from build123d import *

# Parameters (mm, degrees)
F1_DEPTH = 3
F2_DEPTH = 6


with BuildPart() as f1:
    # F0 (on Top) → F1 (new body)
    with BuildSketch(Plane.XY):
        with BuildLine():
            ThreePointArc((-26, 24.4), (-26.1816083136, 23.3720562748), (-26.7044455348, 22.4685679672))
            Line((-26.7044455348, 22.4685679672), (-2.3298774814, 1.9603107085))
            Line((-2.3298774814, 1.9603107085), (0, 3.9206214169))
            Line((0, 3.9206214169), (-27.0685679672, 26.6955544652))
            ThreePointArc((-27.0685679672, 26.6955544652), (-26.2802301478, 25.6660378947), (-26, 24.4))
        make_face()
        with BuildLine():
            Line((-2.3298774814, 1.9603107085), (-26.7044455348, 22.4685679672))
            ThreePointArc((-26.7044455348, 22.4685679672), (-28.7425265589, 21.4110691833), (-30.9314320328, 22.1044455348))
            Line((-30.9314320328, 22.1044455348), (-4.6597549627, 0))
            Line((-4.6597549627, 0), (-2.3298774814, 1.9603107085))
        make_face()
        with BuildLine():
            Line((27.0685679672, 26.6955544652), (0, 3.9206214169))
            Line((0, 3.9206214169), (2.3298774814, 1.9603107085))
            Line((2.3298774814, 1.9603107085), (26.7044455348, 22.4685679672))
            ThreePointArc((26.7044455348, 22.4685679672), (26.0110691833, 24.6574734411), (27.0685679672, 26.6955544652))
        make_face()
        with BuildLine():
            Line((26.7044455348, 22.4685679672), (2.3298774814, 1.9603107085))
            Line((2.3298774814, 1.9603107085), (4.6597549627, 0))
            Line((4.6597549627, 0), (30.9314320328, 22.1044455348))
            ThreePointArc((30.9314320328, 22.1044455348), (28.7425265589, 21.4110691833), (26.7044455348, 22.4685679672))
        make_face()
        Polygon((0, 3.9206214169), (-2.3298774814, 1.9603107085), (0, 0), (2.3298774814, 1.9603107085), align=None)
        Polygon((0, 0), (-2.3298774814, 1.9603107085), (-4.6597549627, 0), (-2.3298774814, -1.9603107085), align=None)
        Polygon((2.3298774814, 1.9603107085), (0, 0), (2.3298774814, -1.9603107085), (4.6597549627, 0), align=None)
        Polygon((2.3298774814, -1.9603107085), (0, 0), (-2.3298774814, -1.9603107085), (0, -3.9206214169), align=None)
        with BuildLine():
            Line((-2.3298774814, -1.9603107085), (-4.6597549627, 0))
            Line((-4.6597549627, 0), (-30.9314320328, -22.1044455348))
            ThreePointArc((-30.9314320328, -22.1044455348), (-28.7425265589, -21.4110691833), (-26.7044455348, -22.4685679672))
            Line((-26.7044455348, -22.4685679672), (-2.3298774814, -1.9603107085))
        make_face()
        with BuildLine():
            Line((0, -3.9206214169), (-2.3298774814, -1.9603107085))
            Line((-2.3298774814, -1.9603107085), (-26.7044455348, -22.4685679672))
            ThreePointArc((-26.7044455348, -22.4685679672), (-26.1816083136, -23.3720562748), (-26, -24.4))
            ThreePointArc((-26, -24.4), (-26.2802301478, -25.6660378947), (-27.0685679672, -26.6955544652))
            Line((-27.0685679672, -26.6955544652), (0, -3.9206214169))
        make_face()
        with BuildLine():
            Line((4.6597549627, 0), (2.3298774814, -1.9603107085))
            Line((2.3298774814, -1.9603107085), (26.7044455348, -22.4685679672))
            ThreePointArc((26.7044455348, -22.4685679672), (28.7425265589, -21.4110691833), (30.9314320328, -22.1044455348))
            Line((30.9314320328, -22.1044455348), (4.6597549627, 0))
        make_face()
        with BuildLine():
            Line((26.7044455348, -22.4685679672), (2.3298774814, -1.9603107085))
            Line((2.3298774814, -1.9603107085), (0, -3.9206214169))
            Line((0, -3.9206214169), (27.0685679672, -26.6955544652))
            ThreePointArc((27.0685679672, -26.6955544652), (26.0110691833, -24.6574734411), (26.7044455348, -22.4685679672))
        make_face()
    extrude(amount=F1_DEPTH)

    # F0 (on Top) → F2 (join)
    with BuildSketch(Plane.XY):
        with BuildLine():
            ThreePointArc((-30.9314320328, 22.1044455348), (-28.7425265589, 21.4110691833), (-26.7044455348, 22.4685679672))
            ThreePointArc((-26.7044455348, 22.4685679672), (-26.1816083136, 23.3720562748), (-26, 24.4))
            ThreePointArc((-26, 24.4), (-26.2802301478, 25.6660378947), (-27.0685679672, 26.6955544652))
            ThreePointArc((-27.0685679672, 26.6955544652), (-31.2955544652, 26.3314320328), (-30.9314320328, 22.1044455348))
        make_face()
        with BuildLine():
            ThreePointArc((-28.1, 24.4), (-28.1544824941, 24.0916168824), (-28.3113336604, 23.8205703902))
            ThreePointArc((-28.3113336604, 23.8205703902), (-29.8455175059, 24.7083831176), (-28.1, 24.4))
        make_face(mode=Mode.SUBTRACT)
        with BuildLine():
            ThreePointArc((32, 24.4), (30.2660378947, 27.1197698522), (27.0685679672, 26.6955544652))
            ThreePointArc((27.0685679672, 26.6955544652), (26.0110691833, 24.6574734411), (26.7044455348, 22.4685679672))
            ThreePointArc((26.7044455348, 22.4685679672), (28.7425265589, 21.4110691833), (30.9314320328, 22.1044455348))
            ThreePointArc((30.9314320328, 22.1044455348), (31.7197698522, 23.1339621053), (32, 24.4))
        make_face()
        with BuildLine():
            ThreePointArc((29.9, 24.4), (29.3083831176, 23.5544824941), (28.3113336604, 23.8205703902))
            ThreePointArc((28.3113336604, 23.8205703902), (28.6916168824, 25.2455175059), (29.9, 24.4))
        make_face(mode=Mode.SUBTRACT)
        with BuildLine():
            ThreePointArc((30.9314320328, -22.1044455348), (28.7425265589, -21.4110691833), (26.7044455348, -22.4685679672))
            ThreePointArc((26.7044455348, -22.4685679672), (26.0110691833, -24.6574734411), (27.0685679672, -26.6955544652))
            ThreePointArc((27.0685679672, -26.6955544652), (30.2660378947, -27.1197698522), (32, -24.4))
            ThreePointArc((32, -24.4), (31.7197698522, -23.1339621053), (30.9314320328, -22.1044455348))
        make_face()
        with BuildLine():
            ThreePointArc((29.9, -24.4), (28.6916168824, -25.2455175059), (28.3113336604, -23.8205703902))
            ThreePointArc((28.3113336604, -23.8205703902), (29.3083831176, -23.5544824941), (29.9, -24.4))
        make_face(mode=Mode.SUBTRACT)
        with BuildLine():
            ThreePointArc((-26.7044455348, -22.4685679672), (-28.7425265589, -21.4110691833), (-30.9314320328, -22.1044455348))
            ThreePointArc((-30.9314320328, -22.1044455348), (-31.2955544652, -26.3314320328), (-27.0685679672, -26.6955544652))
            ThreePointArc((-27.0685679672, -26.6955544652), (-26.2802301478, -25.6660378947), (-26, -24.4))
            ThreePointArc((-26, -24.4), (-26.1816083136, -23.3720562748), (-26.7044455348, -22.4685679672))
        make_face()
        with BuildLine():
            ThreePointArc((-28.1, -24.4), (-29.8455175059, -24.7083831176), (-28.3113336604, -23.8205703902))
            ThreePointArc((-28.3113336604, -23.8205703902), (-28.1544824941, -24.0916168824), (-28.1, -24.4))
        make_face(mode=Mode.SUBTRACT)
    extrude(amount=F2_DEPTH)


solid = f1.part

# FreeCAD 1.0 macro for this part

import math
import FreeCAD as App
import Part
import Sketcher

V = App.Vector

doc = App.newDocument("Part")
body = doc.addObject("PartDesign::Body", "Body")

# Sketch on XY plane
sketch1 = doc.addObject("Sketcher::SketchObject", "Sketch")
body.addObject(sketch1)
sketch1.AttachmentSupport = (doc.XY_Plane, [""])
sketch1.MapMode = "FlatFace"
sketch1.addGeometry(Part.ArcOfCircle(Part.Circle(V(-29, 24.4, 0), V(0, 0, 1), 3), math.radians(-40), math.radians(0)), False)
sketch1.addGeometry(Part.ArcOfCircle(Part.Circle(V(-29, 24.4, 0), V(0, 0, 1), 3), math.radians(-130), math.radians(-40)), False)
sketch1.addGeometry(Part.LineSegment(V(-30.9, 22.1, 0), V(-4.7, 0, 0)), False)
sketch1.addGeometry(Part.LineSegment(V(-4.7, 0, 0), V(-30.9, -22.1, 0)), False)
sketch1.addGeometry(Part.ArcOfCircle(Part.Circle(V(-29, -24.4, 0), V(0, 0, 1), 3), math.radians(40), math.radians(130)), False)
sketch1.addGeometry(Part.ArcOfCircle(Part.Circle(V(-29, -24.4, 0), V(0, 0, 1), 3), math.radians(0), math.radians(40)), False)
sketch1.addGeometry(Part.ArcOfCircle(Part.Circle(V(-29, -24.4, 0), V(0, 0, 1), 3), math.radians(-50), math.radians(0)), False)
sketch1.addGeometry(Part.LineSegment(V(-27.1, -26.7, 0), V(0, -3.9, 0)), False)
sketch1.addGeometry(Part.LineSegment(V(0, -3.9, 0), V(27.1, -26.7, 0)), False)
sketch1.addGeometry(Part.ArcOfCircle(Part.Circle(V(29, -24.4, 0), V(0, 0, 1), 3), math.radians(140), math.radians(230)), False)
sketch1.addGeometry(Part.ArcOfCircle(Part.Circle(V(29, -24.4, 0), V(0, 0, 1), 3), math.radians(50), math.radians(140)), False)
sketch1.addGeometry(Part.LineSegment(V(30.9, -22.1, 0), V(4.7, 0, 0)), False)
sketch1.addGeometry(Part.LineSegment(V(4.7, 0, 0), V(30.9, 22.1, 0)), False)
sketch1.addGeometry(Part.ArcOfCircle(Part.Circle(V(29, 24.4, 0), V(0, 0, 1), 3), math.radians(-140), math.radians(-50)), False)
sketch1.addGeometry(Part.ArcOfCircle(Part.Circle(V(29, 24.4, 0), V(0, 0, 1), 3), math.radians(130), math.radians(220)), False)
sketch1.addGeometry(Part.LineSegment(V(27.1, 26.7, 0), V(0, 3.9, 0)), False)
sketch1.addGeometry(Part.LineSegment(V(0, 3.9, 0), V(-27.1, 26.7, 0)), False)
sketch1.addGeometry(Part.ArcOfCircle(Part.Circle(V(-29, 24.4, 0), V(0, 0, 1), 3), math.radians(0), math.radians(50)), False)
sketch1.addConstraint(Sketcher.Constraint("Tangent", 0, 1, 1, 2))
sketch1.addConstraint(Sketcher.Constraint("Tangent", 1, 1, 2, 1))
sketch1.addConstraint(Sketcher.Constraint("Coincident", 2, 2, 3, 1))
sketch1.addConstraint(Sketcher.Constraint("Tangent", 3, 2, 4, 2))
sketch1.addConstraint(Sketcher.Constraint("Tangent", 4, 1, 5, 2))
sketch1.addConstraint(Sketcher.Constraint("Tangent", 5, 1, 6, 2))
sketch1.addConstraint(Sketcher.Constraint("Tangent", 6, 1, 7, 1))
sketch1.addConstraint(Sketcher.Constraint("Coincident", 7, 2, 8, 1))
sketch1.addConstraint(Sketcher.Constraint("Tangent", 8, 2, 9, 2))
sketch1.addConstraint(Sketcher.Constraint("Tangent", 9, 1, 10, 2))
sketch1.addConstraint(Sketcher.Constraint("Tangent", 10, 1, 11, 1))
sketch1.addConstraint(Sketcher.Constraint("Coincident", 11, 2, 12, 1))
sketch1.addConstraint(Sketcher.Constraint("Tangent", 12, 2, 13, 2))
sketch1.addConstraint(Sketcher.Constraint("Tangent", 13, 1, 14, 2))
sketch1.addConstraint(Sketcher.Constraint("Tangent", 14, 1, 15, 1))
sketch1.addConstraint(Sketcher.Constraint("Coincident", 15, 2, 16, 1))
sketch1.addConstraint(Sketcher.Constraint("Tangent", 16, 2, 17, 2))
sketch1.addConstraint(Sketcher.Constraint("Tangent", 17, 1, 0, 2))
sketch1.addConstraint(Sketcher.Constraint("Coincident", 6, 3, 4, 3))
sketch1.addConstraint(Sketcher.Constraint("Equal", 0, 1))
sketch1.addConstraint(Sketcher.Constraint("Equal", 1, 4))
sketch1.addConstraint(Sketcher.Constraint("Equal", 6, 9))
sketch1.addConstraint(Sketcher.Constraint("Equal", 9, 10))
sketch1.addConstraint(Sketcher.Constraint("Equal", 10, 13))
sketch1.addConstraint(Sketcher.Constraint("Equal", 13, 14))
sketch1.addConstraint(Sketcher.Constraint("Equal", 14, 17))
sketch1.addConstraint(Sketcher.Constraint("Symmetric", 0, 3, 9, 3, -1, 1))
sketch1.addConstraint(Sketcher.Constraint("Symmetric", 4, 3, 13, 3, -1, 1))
sketch1.addConstraint(Sketcher.Constraint("Symmetric", 2, 2, 11, 2, -1, 1))
sketch1.addConstraint(Sketcher.Constraint("Symmetric", 7, 2, 15, 2, -1, 1))
sketch1.addConstraint(Sketcher.Constraint("Symmetric", 4, 3, 9, 3, -2))
sketch1.addConstraint(Sketcher.Constraint("PointOnObject", 2, 2, -1))
sketch1.addConstraint(Sketcher.Constraint("PointOnObject", 7, 2, -2))
sketch1.addConstraint(Sketcher.Constraint("Parallel", 3, 7))
sketch1.addConstraint(Sketcher.Constraint("Horizontal", 10, 3, 5, 1))
sketch1.addConstraint(Sketcher.Constraint("Horizontal", 4, 1, 9, 1))
sketch1.addConstraint(Sketcher.Constraint("Horizontal", 0, 1, 13, 1))
sketch1.addConstraint(Sketcher.Constraint("Horizontal", 14, 3, 17, 1))
sketch1.addConstraint(Sketcher.Constraint("Vertical", 0, 1, 4, 1))
sketch1.addConstraint(Sketcher.Constraint("Radius", 0, 3.0))
sketch1.addConstraint(Sketcher.Constraint("DistanceX", 0, 3, -1, 1, 29.0))
sketch1.addConstraint(Sketcher.Constraint("DistanceY", -1, 1, 0, 3, 24.4))
sketch1.addConstraint(Sketcher.Constraint("DistanceX", 2, 2, 9, 1, 31.3642))
sketch1.addConstraint(Sketcher.Constraint("DistanceY", 7, 2, -1, 1, 3.920621))
pad1 = doc.addObject("PartDesign::Pad", "Pad")
body.addObject(pad1)
pad1.Profile = sketch1
pad1.Length = 3

# Sketch on XY plane
sketch2 = doc.addObject("Sketcher::SketchObject", "Sketch001")
body.addObject(sketch2)
sketch2.AttachmentSupport = (doc.XY_Plane, [""])
sketch2.MapMode = "FlatFace"
sketch2.addGeometry(Part.ArcOfCircle(Part.Circle(V(-29, 24.4, 0), V(0, 0, 1), 3), math.radians(-130), math.radians(-40)), False)
sketch2.addGeometry(Part.ArcOfCircle(Part.Circle(V(-29, 24.4, 0), V(0, 0, 1), 3), math.radians(-40), math.radians(0)), False)
sketch2.addGeometry(Part.ArcOfCircle(Part.Circle(V(-29, 24.4, 0), V(0, 0, 1), 3), math.radians(0), math.radians(50)), False)
sketch2.addGeometry(Part.ArcOfCircle(Part.Circle(V(-29, 24.4, 0), V(0, 0, 1), 3), math.radians(50), math.radians(230)), False)
sketch2.addGeometry(Part.ArcOfCircle(Part.Circle(V(-29, 24.4, 0), V(0, 0, 1), 0.9), math.radians(0), math.radians(320)), False)
sketch2.addGeometry(Part.ArcOfCircle(Part.Circle(V(-29, 24.4, 0), V(0, 0, 1), 0.9), math.radians(-40), math.radians(0)), False)
sketch2.addGeometry(Part.ArcOfCircle(Part.Circle(V(29, 24.4, 0), V(0, 0, 1), 3), math.radians(0), math.radians(130)), False)
sketch2.addGeometry(Part.ArcOfCircle(Part.Circle(V(29, 24.4, 0), V(0, 0, 1), 3), math.radians(130), math.radians(220)), False)
sketch2.addGeometry(Part.ArcOfCircle(Part.Circle(V(29, 24.4, 0), V(0, 0, 1), 3), math.radians(-140), math.radians(-50)), False)
sketch2.addGeometry(Part.ArcOfCircle(Part.Circle(V(29, 24.4, 0), V(0, 0, 1), 3), math.radians(-50), math.radians(0)), False)
sketch2.addGeometry(Part.ArcOfCircle(Part.Circle(V(29, 24.4, 0), V(0, 0, 1), 0.9), math.radians(0), math.radians(220)), False)
sketch2.addGeometry(Part.ArcOfCircle(Part.Circle(V(29, 24.4, 0), V(0, 0, 1), 0.9), math.radians(-140), math.radians(0)), False)
sketch2.addGeometry(Part.ArcOfCircle(Part.Circle(V(29, -24.4, 0), V(0, 0, 1), 3), math.radians(50), math.radians(140)), False)
sketch2.addGeometry(Part.ArcOfCircle(Part.Circle(V(29, -24.4, 0), V(0, 0, 1), 3), math.radians(140), math.radians(230)), False)
sketch2.addGeometry(Part.ArcOfCircle(Part.Circle(V(29, -24.4, 0), V(0, 0, 1), 3), math.radians(-130), math.radians(0)), False)
sketch2.addGeometry(Part.ArcOfCircle(Part.Circle(V(29, -24.4, 0), V(0, 0, 1), 3), math.radians(0), math.radians(50)), False)
sketch2.addGeometry(Part.ArcOfCircle(Part.Circle(V(29, -24.4, 0), V(0, 0, 1), 0.9), math.radians(0), math.radians(140)), False)
sketch2.addGeometry(Part.ArcOfCircle(Part.Circle(V(29, -24.4, 0), V(0, 0, 1), 0.9), math.radians(140), math.radians(360)), False)
sketch2.addGeometry(Part.ArcOfCircle(Part.Circle(V(-29, -24.4, 0), V(0, 0, 1), 3), math.radians(40), math.radians(130)), False)
sketch2.addGeometry(Part.ArcOfCircle(Part.Circle(V(-29, -24.4, 0), V(0, 0, 1), 3), math.radians(130), math.radians(310)), False)
sketch2.addGeometry(Part.ArcOfCircle(Part.Circle(V(-29, -24.4, 0), V(0, 0, 1), 3), math.radians(-50), math.radians(0)), False)
sketch2.addGeometry(Part.ArcOfCircle(Part.Circle(V(-29, -24.4, 0), V(0, 0, 1), 3), math.radians(0), math.radians(40)), False)
sketch2.addGeometry(Part.ArcOfCircle(Part.Circle(V(-29, -24.4, 0), V(0, 0, 1), 0.9), math.radians(0), math.radians(40)), False)
sketch2.addGeometry(Part.ArcOfCircle(Part.Circle(V(-29, -24.4, 0), V(0, 0, 1), 0.9), math.radians(40), math.radians(360)), False)
sketch2.addConstraint(Sketcher.Constraint("Tangent", 0, 2, 1, 1))
sketch2.addConstraint(Sketcher.Constraint("Tangent", 1, 2, 2, 1))
sketch2.addConstraint(Sketcher.Constraint("Tangent", 2, 2, 3, 1))
sketch2.addConstraint(Sketcher.Constraint("Tangent", 3, 2, 0, 1))
sketch2.addConstraint(Sketcher.Constraint("Tangent", 4, 1, 5, 2))
sketch2.addConstraint(Sketcher.Constraint("Coincident", 5, 1, 4, 2))
sketch2.addConstraint(Sketcher.Constraint("Tangent", 6, 2, 7, 1))
sketch2.addConstraint(Sketcher.Constraint("Tangent", 7, 2, 8, 1))
sketch2.addConstraint(Sketcher.Constraint("Tangent", 8, 2, 9, 1))
sketch2.addConstraint(Sketcher.Constraint("Tangent", 9, 2, 6, 1))
sketch2.addConstraint(Sketcher.Constraint("Tangent", 10, 1, 11, 2))
sketch2.addConstraint(Sketcher.Constraint("Coincident", 11, 1, 10, 2))
sketch2.addConstraint(Sketcher.Constraint("Tangent", 12, 2, 13, 1))
sketch2.addConstraint(Sketcher.Constraint("Tangent", 13, 2, 14, 1))
sketch2.addConstraint(Sketcher.Constraint("Tangent", 14, 2, 15, 1))
sketch2.addConstraint(Sketcher.Constraint("Tangent", 15, 2, 12, 1))
sketch2.addConstraint(Sketcher.Constraint("Tangent", 16, 1, 17, 2))
sketch2.addConstraint(Sketcher.Constraint("Coincident", 17, 1, 16, 2))
sketch2.addConstraint(Sketcher.Constraint("Tangent", 18, 2, 19, 1))
sketch2.addConstraint(Sketcher.Constraint("Tangent", 19, 2, 20, 1))
sketch2.addConstraint(Sketcher.Constraint("Tangent", 20, 2, 21, 1))
sketch2.addConstraint(Sketcher.Constraint("Tangent", 21, 2, 18, 1))
sketch2.addConstraint(Sketcher.Constraint("Tangent", 22, 1, 23, 2))
sketch2.addConstraint(Sketcher.Constraint("Coincident", 23, 1, 22, 2))
sketch2.addConstraint(Sketcher.Constraint("Coincident", 4, 3, 0, 3))
sketch2.addConstraint(Sketcher.Constraint("Coincident", 10, 3, 6, 3))
sketch2.addConstraint(Sketcher.Constraint("Coincident", 16, 3, 12, 3))
sketch2.addConstraint(Sketcher.Constraint("Coincident", 22, 3, 18, 3))
sketch2.addConstraint(Sketcher.Constraint("Equal", 0, 1))
sketch2.addConstraint(Sketcher.Constraint("Equal", 3, 6))
sketch2.addConstraint(Sketcher.Constraint("Equal", 6, 7))
sketch2.addConstraint(Sketcher.Constraint("Equal", 5, 10))
sketch2.addConstraint(Sketcher.Constraint("Equal", 9, 12))
sketch2.addConstraint(Sketcher.Constraint("Equal", 12, 13))
sketch2.addConstraint(Sketcher.Constraint("Equal", 11, 16))
sketch2.addConstraint(Sketcher.Constraint("Equal", 15, 18))
sketch2.addConstraint(Sketcher.Constraint("Equal", 18, 19))
sketch2.addConstraint(Sketcher.Constraint("Equal", 17, 22))
sketch2.addConstraint(Sketcher.Constraint("Symmetric", 0, 3, 12, 3, -1, 1))
sketch2.addConstraint(Sketcher.Constraint("Symmetric", 6, 3, 18, 3, -1, 1))
sketch2.addConstraint(Sketcher.Constraint("Symmetric", 0, 3, 6, 3, -2))
sketch2.addConstraint(Sketcher.Constraint("Horizontal", 11, 3, 1, 2))
sketch2.addConstraint(Sketcher.Constraint("Horizontal", 1, 2, 4, 1))
sketch2.addConstraint(Sketcher.Constraint("Horizontal", 2, 2, 6, 2))
sketch2.addConstraint(Sketcher.Constraint("Horizontal", 0, 2, 7, 2))
sketch2.addConstraint(Sketcher.Constraint("Horizontal", 3, 2, 8, 2))
sketch2.addConstraint(Sketcher.Constraint("Horizontal", 4, 1, 9, 2))
sketch2.addConstraint(Sketcher.Constraint("Horizontal", 9, 2, 10, 1))
sketch2.addConstraint(Sketcher.Constraint("Horizontal", 5, 1, 11, 1))
sketch2.addConstraint(Sketcher.Constraint("Horizontal", 23, 3, 14, 2))
sketch2.addConstraint(Sketcher.Constraint("Horizontal", 14, 2, 16, 1))
sketch2.addConstraint(Sketcher.Constraint("Horizontal", 15, 2, 18, 2))
sketch2.addConstraint(Sketcher.Constraint("Horizontal", 13, 2, 19, 2))
sketch2.addConstraint(Sketcher.Constraint("Horizontal", 16, 1, 20, 2))
sketch2.addConstraint(Sketcher.Constraint("Horizontal", 12, 2, 21, 2))
sketch2.addConstraint(Sketcher.Constraint("Horizontal", 20, 2, 22, 1))
sketch2.addConstraint(Sketcher.Constraint("Horizontal", 17, 1, 23, 1))
sketch2.addConstraint(Sketcher.Constraint("Vertical", 7, 2, 12, 2))
sketch2.addConstraint(Sketcher.Constraint("Vertical", 6, 2, 13, 2))
sketch2.addConstraint(Sketcher.Constraint("Vertical", 8, 2, 15, 2))
sketch2.addConstraint(Sketcher.Constraint("Vertical", 11, 1, 17, 1))
sketch2.addConstraint(Sketcher.Constraint("Radius", 0, 3.0))
sketch2.addConstraint(Sketcher.Constraint("Radius", 4, 0.9))
sketch2.addConstraint(Sketcher.Constraint("DistanceX", 0, 3, -1, 1, 29.0))
sketch2.addConstraint(Sketcher.Constraint("DistanceY", -1, 1, 0, 3, 24.4))
sketch2.addConstraint(Sketcher.Constraint("DistanceY", -1, 1, 5, 1, 23.82057))
sketch2.addConstraint(Sketcher.Constraint("DistanceX", 0, 2, -1, 1, 26.704446))
sketch2.addConstraint(Sketcher.Constraint("DistanceX", 2, 2, -1, 1, 27.068568))
sketch2.addConstraint(Sketcher.Constraint("DistanceX", 3, 2, -1, 1, 30.931432))
pad2 = doc.addObject("PartDesign::Pad", "Pad001")
body.addObject(pad2)
pad2.Profile = sketch2
pad2.Length = 6

doc.recompute()
